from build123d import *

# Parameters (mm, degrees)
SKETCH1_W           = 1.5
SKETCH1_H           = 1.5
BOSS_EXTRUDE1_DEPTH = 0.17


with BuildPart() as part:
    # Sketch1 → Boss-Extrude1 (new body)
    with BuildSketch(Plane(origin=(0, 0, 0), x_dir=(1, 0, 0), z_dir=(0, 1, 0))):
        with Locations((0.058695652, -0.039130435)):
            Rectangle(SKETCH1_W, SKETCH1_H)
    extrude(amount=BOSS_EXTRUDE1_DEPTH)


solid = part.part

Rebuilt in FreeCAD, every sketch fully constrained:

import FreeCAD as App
import Part
import Sketcher


def add_polygon(sketch, points):
    """Adds a closed chain of lines whose ends are joined by coincident constraints."""
    first, n = sketch.GeometryCount, len(points)
    for a, b in zip(points, points[1:] + points[:1]):
        sketch.addGeometry(Part.LineSegment(App.Vector(*a, 0), App.Vector(*b, 0)), False)
    for i in range(n):
        sketch.addConstraint(Sketcher.Constraint("Coincident", first + i, 2, first + (i + 1) % n, 1))

doc = App.newDocument("Part")
params = doc.addObject("Spreadsheet::Sheet", "Params")
for row, (alias, value) in enumerate([
    ("sketch1_width", "1.5 mm"),
    ("pad1_length", "0.17 mm"),
], start=1):
    params.set(f"A{row}", alias)
    params.set(f"B{row}", "=" + value)
    params.setAlias(f"B{row}", alias)

body = doc.addObject("PartDesign::Body", "Body")

sketch1 = body.newObject("Sketcher::SketchObject", "Sketch")
sketch1.AttachmentSupport = (doc.getObject("XZ_Plane"), [""])
sketch1.MapMode = "FlatFace"
add_polygon(sketch1, [(-0.7, -0.7), (-0.7, 0.8), (0.8, 0.8), (0.8, -0.7)])
sketch1.addConstraint(Sketcher.Constraint("Vertical", 0))
sketch1.addConstraint(Sketcher.Constraint("Horizontal", 1))
sketch1.addConstraint(Sketcher.Constraint("Vertical", 2))
sketch1.addConstraint(Sketcher.Constraint("Horizontal", 3))
sketch1.addConstraint(Sketcher.Constraint("Equal", 3, 0))
sketch1.addConstraint(Sketcher.Constraint("DistanceX", 1, 1, 1, 2, 1.5))
sketch1.addConstraint(Sketcher.Constraint("DistanceY", -1, 1, 0, 2, 0.78913))
sketch1.addConstraint(Sketcher.Constraint("DistanceX", 0, 2, -1, 1, 0.691304))
sketch1.setExpression("Constraints[9]", "Params.sketch1_width")
pad1 = body.newObject("PartDesign::Pad", "Pad")
pad1.Profile = sketch1
pad1.setExpression("Length", "Params.pad1_length")
pad1.Reversed = True

doc.recompute()
